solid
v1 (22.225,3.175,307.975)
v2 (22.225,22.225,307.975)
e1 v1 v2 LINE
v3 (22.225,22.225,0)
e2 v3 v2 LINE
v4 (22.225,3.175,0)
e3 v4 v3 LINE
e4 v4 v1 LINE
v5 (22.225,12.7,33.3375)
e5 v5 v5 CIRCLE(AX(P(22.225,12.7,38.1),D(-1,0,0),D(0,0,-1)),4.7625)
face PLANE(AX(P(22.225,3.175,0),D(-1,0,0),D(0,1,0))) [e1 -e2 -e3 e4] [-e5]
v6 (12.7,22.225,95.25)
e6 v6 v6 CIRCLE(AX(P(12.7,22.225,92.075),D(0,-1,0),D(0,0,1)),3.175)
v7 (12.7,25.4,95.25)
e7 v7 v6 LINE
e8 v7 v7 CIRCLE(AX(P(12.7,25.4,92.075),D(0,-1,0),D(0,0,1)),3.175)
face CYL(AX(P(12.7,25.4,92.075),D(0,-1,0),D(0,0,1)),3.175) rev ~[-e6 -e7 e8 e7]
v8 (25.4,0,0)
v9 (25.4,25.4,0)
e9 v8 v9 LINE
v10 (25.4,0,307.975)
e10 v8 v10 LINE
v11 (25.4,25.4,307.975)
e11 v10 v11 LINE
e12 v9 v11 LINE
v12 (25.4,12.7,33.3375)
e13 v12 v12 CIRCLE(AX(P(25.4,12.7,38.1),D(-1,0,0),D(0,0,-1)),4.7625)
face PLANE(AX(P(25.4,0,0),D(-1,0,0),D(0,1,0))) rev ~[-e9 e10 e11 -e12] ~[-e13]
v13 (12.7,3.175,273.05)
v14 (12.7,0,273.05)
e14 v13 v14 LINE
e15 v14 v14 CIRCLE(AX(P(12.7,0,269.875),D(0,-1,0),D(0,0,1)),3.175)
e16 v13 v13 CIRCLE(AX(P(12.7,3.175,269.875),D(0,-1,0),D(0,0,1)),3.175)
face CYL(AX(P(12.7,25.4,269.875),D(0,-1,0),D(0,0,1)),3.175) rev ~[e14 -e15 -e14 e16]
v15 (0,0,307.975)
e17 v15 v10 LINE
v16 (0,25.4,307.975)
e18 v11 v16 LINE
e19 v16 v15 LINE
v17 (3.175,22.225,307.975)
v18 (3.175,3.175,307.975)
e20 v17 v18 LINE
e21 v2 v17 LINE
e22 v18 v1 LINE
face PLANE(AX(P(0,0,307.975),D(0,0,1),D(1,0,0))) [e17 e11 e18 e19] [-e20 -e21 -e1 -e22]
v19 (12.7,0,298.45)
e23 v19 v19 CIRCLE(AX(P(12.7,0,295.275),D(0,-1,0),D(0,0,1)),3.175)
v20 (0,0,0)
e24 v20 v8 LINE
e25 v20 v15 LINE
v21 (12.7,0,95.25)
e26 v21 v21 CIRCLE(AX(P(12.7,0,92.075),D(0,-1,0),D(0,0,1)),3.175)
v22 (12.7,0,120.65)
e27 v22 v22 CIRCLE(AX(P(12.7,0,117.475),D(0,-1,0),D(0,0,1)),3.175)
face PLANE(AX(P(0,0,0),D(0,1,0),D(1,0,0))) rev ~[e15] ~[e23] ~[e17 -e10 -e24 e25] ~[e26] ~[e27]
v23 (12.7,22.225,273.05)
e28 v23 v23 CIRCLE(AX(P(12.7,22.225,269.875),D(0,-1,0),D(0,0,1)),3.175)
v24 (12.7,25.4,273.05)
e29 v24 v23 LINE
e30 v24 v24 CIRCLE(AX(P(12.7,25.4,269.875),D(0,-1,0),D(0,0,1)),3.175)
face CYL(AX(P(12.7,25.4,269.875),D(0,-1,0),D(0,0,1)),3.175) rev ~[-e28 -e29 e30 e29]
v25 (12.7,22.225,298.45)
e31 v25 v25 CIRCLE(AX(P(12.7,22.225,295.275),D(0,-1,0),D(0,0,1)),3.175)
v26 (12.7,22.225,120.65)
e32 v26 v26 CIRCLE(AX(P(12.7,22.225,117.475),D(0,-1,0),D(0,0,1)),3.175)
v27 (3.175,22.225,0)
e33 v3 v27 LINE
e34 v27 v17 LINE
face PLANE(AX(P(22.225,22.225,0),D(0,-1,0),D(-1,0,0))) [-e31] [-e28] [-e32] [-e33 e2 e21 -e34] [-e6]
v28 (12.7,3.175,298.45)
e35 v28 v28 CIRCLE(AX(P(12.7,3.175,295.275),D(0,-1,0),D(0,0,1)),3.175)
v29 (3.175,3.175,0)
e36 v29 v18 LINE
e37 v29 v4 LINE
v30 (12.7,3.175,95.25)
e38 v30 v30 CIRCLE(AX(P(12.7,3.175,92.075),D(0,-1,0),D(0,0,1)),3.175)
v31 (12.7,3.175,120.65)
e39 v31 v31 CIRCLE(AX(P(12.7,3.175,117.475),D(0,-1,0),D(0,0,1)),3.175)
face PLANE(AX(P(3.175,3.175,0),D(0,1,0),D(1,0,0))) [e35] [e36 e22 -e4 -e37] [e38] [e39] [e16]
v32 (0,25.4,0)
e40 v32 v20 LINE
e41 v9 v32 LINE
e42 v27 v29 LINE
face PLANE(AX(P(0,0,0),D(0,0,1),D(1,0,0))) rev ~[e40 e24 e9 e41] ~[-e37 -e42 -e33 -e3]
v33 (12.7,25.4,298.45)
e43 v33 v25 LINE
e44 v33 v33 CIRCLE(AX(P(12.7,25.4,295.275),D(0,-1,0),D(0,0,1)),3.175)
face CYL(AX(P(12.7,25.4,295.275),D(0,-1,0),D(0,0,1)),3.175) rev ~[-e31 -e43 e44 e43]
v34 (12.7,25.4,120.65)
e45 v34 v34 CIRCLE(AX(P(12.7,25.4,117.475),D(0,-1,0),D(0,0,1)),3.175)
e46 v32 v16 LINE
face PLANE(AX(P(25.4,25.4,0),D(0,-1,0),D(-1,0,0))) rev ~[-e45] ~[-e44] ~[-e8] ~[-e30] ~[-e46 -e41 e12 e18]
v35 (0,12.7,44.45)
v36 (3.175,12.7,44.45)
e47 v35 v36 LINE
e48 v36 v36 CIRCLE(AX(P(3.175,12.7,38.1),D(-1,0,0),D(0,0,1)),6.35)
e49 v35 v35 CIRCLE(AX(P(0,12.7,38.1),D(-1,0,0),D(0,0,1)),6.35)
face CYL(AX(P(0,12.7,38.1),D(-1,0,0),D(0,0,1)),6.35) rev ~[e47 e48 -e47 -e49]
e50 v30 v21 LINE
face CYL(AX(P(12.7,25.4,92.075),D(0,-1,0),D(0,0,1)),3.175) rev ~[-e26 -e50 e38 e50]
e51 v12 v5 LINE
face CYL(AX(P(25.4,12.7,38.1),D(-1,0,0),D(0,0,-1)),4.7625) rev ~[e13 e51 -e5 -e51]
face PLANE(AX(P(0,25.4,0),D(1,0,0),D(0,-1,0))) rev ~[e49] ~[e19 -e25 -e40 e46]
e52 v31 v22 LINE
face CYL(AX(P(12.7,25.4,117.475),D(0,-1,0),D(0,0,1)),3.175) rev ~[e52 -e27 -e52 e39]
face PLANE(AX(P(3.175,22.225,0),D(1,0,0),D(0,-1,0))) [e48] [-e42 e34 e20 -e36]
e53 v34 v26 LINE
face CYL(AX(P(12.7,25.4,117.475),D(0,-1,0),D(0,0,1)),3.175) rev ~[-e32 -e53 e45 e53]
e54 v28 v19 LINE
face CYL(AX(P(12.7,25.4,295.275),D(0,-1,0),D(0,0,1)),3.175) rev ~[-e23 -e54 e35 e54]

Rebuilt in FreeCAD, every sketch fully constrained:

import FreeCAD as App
import Part
import Sketcher

V = App.Vector
Q = App.Units.Quantity

doc = App.newDocument("Part")
body = doc.addObject("PartDesign::Body", "Body")

# Sketch on XY plane
sketch1 = doc.addObject("Sketcher::SketchObject", "Sketch")
body.addObject(sketch1)
sketch1.AttachmentSupport = (doc.XY_Plane, [""])
sketch1.MapMode = "FlatFace"
sketch1.addGeometry([
    Part.LineSegment(V(0, 25.4, 0), V(0, 0, 0)),  # 0
    Part.LineSegment(V(0, 0, 0), V(25.4, 0, 0)),  # 1
    Part.LineSegment(V(25.4, 0, 0), V(25.4, 25.4, 0)),  # 2
    Part.LineSegment(V(25.4, 25.4, 0), V(0, 25.4, 0)),  # 3
    Part.LineSegment(V(22.225, 3.175, 0), V(3.175, 3.175, 0)),  # 4
    Part.LineSegment(V(3.175, 3.175, 0), V(3.175, 22.225, 0)),  # 5
    Part.LineSegment(V(3.175, 22.225, 0), V(22.225, 22.225, 0)),  # 6
    Part.LineSegment(V(22.225, 22.225, 0), V(22.225, 3.175, 0)),  # 7
], False)
sketch1.addConstraint([
    Sketcher.Constraint("Coincident", 0, 2, 1, 1),
    Sketcher.Constraint("Coincident", 1, 2, 2, 1),
    Sketcher.Constraint("Coincident", 2, 2, 3, 1),
    Sketcher.Constraint("Coincident", 3, 2, 0, 1),
    Sketcher.Constraint("Coincident", 4, 2, 5, 1),
    Sketcher.Constraint("Coincident", 5, 2, 6, 1),
    Sketcher.Constraint("Coincident", 6, 2, 7, 1),
    Sketcher.Constraint("Coincident", 7, 2, 4, 1),
    Sketcher.Constraint("Vertical", 0),
    Sketcher.Constraint("Horizontal", 1),
    Sketcher.Constraint("Vertical", 2),
    Sketcher.Constraint("Horizontal", 3),
    Sketcher.Constraint("Horizontal", 4),
    Sketcher.Constraint("Vertical", 5),
    Sketcher.Constraint("Horizontal", 6),
    Sketcher.Constraint("Vertical", 7),
    Sketcher.Constraint("Coincident", 0, 2, -1, 1),
    Sketcher.Constraint("Equal", 3, 0),
    Sketcher.Constraint("Equal", 6, 5),
    Sketcher.Constraint("DistanceX", 1, 1, 1, 2, Q("1 in")),
    Sketcher.Constraint("DistanceX", 4, 2, 4, 1, Q("0.75 in")),
    Sketcher.Constraint("DistanceX", -1, 1, 4, 2, Q("0.125 in")),
    Sketcher.Constraint("DistanceY", -1, 1, 4, 2, Q("0.125 in")),
])
pad1 = doc.addObject("PartDesign::Pad", "Pad")
body.addObject(pad1)
pad1.Profile = sketch1
pad1.Length = Q("12.125 in")

# Sketch on XZ plane
sketch2 = doc.addObject("Sketcher::SketchObject", "Sketch001")
body.addObject(sketch2)
sketch2.AttachmentSupport = (doc.XZ_Plane, [""])
sketch2.MapMode = "FlatFace"
sketch2.AttachmentOffset = App.Placement(V(0, 0, -1 * 25.4), App.Rotation())
sketch2.addGeometry([
    Part.Circle(V(12.7, 295.275, 0), V(0, 0, 1), 3.175),
    Part.Circle(V(12.7, 269.875, 0), V(0, 0, 1), 3.175),
    Part.Circle(V(12.7, 117.475, 0), V(0, 0, 1), 3.175),
    Part.Circle(V(12.7, 92.075, 0), V(0, 0, 1), 3.175),
], False)
sketch2.addConstraint([
    Sketcher.Constraint("Equal", 0, 1),
    Sketcher.Constraint("Equal", 1, 2),
    Sketcher.Constraint("Equal", 2, 3),
    Sketcher.Constraint("Vertical", 0, 3, 1, 3),
    Sketcher.Constraint("Vertical", 1, 3, 2, 3),
    Sketcher.Constraint("Vertical", 2, 3, 3, 3),
    Sketcher.Constraint("Diameter", 0, Q("0.25 in")),
    Sketcher.Constraint("DistanceY", 1, 3, 0, 3, Q("1 in")),
    Sketcher.Constraint("DistanceY", 2, 3, 1, 3, Q("6 in")),
    Sketcher.Constraint("DistanceY", 3, 3, 2, 3, Q("1 in")),
    Sketcher.Constraint("DistanceX", -1, 1, 0, 3, Q("0.5 in")),
    Sketcher.Constraint("DistanceY", -1, 1, 0, 3, Q("11.625 in")),
])
doc.recompute()
hole = doc.addObject("PartDesign::Hole", "Hole")
body.addObject(hole)
hole.Profile = sketch2
hole.ThreadType = "None"
hole.Diameter = Q("0.25 in")
hole.DepthType = "ThroughAll"
hole.Reversed = True

# Sketch on YZ plane
sketch3 = doc.addObject("Sketcher::SketchObject", "Sketch002")
body.addObject(sketch3)
sketch3.AttachmentSupport = (doc.YZ_Plane, [""])
sketch3.MapMode = "FlatFace"
sketch3.AttachmentOffset = App.Placement(V(0, 0, 1 * 25.4), App.Rotation())
sketch3.addGeometry(Part.Circle(V(12.7, 38.1, 0), V(0, 0, 1), 4.7625), False)
sketch3.addConstraint([
    Sketcher.Constraint("Diameter", 0, Q("0.375 in")),
    Sketcher.Constraint("DistanceX", -1, 1, 0, 3, Q("0.5 in")),
    Sketcher.Constraint("DistanceY", -1, 1, 0, 3, Q("1.5 in")),
])
doc.recompute()
hole2 = doc.addObject("PartDesign::Hole", "Hole001")
body.addObject(hole2)
hole2.Profile = sketch3
hole2.ThreadType = "None"
hole2.Diameter = Q("0.375 in")
hole2.DepthType = "ThroughAll"

# Sketch on YZ plane
sketch4 = doc.addObject("Sketcher::SketchObject", "Sketch003")
body.addObject(sketch4)
sketch4.AttachmentSupport = (doc.YZ_Plane, [""])
sketch4.MapMode = "FlatFace"
sketch4.addGeometry([
    Part.Circle(V(12.7, 38.1, 0), V(0, 0, 1), 6.35),
    Part.Circle(V(12.7, 38.1, 0), V(0, 0, 1), 4.7625),
], False)
sketch4.addConstraint([
    Sketcher.Constraint("Coincident", 1, 3, 0, 3),
    Sketcher.Constraint("Diameter", 0, Q("0.5 in")),
    Sketcher.Constraint("DistanceX", -1, 1, 0, 3, Q("0.5 in")),
    Sketcher.Constraint("Diameter", 1, Q("0.375 in")),
    Sketcher.Constraint("DistanceY", -1, 1, 0, 3, Q("1.5 in")),
])
pocket1 = doc.addObject("PartDesign::Pocket", "Pocket")
body.addObject(pocket1)
pocket1.Profile = sketch4
pocket1.Length = Q("0.5 in")
pocket1.Reversed = True

doc.recompute()
